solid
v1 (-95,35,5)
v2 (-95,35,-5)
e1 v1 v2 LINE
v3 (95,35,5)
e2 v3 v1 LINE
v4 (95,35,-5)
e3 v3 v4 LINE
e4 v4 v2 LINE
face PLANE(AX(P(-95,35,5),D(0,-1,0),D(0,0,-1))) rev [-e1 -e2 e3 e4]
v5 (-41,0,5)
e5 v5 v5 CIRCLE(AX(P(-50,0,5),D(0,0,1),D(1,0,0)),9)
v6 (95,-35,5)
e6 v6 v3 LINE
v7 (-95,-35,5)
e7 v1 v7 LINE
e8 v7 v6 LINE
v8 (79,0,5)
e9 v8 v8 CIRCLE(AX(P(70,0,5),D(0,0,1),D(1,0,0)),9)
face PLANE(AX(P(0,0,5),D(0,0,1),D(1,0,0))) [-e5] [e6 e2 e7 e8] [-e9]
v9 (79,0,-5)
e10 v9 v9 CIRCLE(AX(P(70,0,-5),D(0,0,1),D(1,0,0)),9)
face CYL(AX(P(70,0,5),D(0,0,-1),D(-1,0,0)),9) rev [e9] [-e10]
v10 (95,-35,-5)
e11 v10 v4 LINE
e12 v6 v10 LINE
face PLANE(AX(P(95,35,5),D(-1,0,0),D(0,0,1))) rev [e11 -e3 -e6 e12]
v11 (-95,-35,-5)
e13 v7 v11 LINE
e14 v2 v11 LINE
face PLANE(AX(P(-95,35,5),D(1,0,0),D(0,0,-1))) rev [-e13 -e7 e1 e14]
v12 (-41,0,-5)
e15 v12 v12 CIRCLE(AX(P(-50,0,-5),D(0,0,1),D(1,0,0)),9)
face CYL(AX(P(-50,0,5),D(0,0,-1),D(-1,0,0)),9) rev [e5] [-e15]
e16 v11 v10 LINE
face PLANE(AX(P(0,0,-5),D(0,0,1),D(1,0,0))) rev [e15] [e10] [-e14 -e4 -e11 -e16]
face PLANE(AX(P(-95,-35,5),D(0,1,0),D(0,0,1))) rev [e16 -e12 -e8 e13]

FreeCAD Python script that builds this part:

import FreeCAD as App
import Part
import Sketcher
from FreeCAD import Vector
Q = App.Units.Quantity


def add_polygon(sketch, points):
    """Adds a closed chain of lines whose ends are joined by coincident constraints."""
    first, n = sketch.GeometryCount, len(points)
    for a, b in zip(points, points[1:] + points[:1]):
        sketch.addGeometry(Part.LineSegment(App.Vector(*a, 0), App.Vector(*b, 0)), False)
    for i in range(n):
        sketch.addConstraint(Sketcher.Constraint("Coincident", first + i, 2, first + (i + 1) % n, 1))

doc = App.newDocument("Part")
params = doc.addObject("Spreadsheet::Sheet", "Params")
for row, (alias, value) in enumerate([
    ("sketch1_diameter", "18 mm"),
    ("sketch1_width", "190 mm"),
    ("sketch1_height", "70 mm"),
    ("pad1_length", "10 mm"),
], start=1):
    params.set(f"A{row}", alias)
    params.set(f"B{row}", "=" + value)
    params.setAlias(f"B{row}", alias)

body = doc.addObject("PartDesign::Body", "Body")

# Sketch on XY plane
sketch1 = body.newObject("Sketcher::SketchObject", "Sketch")
sketch1.AttachmentSupport = (doc.getObject("XY_Plane"), [""])
sketch1.MapMode = "FlatFace"
add_polygon(sketch1, [(-95, 35), (-95, -35), (95, -35), (95, 35)])  # lines 0-3
sketch1.addGeometry(Part.Circle(Vector(-50, 0, 0), Vector(0, 0, 1), 9), False)  # 4
sketch1.addGeometry(Part.Circle(Vector(70, 0, 0), Vector(0, 0, 1), 9), False)  # 5
sketch1.addConstraint([
    Sketcher.Constraint("Vertical", 0),
    Sketcher.Constraint("Horizontal", 1),
    Sketcher.Constraint("Vertical", 2),
    Sketcher.Constraint("Horizontal", 3),
    Sketcher.Constraint("Equal", 4, 5),
    Sketcher.Constraint("Symmetric", 0, 2, 2, 2, -1, 1),
    Sketcher.Constraint("PointOnObject", 4, 3, -1),
    Sketcher.Constraint("PointOnObject", 5, 3, -1),
    Sketcher.Constraint("Diameter", 4, Q("18 mm")),
    Sketcher.Constraint("DistanceX", 1, 1, 1, 2, Q("190 mm")),
    Sketcher.Constraint("DistanceY", 0, 2, 0, 1, Q("70 mm")),
    Sketcher.Constraint("DistanceX", 4, 3, -1, 1, Q("50 mm")),
    Sketcher.Constraint("DistanceX", -1, 1, 5, 3, Q("70 mm")),
])
sketch1.setExpression("Constraints[12]", "Params.sketch1_diameter")
sketch1.setExpression("Constraints[13]", "Params.sketch1_width")
sketch1.setExpression("Constraints[14]", "Params.sketch1_height")
pad1 = body.newObject("PartDesign::Pad", "Pad")
pad1.Profile = sketch1
pad1.setExpression("Length", "Params.pad1_length")
pad1.Midplane = True

doc.recompute()
